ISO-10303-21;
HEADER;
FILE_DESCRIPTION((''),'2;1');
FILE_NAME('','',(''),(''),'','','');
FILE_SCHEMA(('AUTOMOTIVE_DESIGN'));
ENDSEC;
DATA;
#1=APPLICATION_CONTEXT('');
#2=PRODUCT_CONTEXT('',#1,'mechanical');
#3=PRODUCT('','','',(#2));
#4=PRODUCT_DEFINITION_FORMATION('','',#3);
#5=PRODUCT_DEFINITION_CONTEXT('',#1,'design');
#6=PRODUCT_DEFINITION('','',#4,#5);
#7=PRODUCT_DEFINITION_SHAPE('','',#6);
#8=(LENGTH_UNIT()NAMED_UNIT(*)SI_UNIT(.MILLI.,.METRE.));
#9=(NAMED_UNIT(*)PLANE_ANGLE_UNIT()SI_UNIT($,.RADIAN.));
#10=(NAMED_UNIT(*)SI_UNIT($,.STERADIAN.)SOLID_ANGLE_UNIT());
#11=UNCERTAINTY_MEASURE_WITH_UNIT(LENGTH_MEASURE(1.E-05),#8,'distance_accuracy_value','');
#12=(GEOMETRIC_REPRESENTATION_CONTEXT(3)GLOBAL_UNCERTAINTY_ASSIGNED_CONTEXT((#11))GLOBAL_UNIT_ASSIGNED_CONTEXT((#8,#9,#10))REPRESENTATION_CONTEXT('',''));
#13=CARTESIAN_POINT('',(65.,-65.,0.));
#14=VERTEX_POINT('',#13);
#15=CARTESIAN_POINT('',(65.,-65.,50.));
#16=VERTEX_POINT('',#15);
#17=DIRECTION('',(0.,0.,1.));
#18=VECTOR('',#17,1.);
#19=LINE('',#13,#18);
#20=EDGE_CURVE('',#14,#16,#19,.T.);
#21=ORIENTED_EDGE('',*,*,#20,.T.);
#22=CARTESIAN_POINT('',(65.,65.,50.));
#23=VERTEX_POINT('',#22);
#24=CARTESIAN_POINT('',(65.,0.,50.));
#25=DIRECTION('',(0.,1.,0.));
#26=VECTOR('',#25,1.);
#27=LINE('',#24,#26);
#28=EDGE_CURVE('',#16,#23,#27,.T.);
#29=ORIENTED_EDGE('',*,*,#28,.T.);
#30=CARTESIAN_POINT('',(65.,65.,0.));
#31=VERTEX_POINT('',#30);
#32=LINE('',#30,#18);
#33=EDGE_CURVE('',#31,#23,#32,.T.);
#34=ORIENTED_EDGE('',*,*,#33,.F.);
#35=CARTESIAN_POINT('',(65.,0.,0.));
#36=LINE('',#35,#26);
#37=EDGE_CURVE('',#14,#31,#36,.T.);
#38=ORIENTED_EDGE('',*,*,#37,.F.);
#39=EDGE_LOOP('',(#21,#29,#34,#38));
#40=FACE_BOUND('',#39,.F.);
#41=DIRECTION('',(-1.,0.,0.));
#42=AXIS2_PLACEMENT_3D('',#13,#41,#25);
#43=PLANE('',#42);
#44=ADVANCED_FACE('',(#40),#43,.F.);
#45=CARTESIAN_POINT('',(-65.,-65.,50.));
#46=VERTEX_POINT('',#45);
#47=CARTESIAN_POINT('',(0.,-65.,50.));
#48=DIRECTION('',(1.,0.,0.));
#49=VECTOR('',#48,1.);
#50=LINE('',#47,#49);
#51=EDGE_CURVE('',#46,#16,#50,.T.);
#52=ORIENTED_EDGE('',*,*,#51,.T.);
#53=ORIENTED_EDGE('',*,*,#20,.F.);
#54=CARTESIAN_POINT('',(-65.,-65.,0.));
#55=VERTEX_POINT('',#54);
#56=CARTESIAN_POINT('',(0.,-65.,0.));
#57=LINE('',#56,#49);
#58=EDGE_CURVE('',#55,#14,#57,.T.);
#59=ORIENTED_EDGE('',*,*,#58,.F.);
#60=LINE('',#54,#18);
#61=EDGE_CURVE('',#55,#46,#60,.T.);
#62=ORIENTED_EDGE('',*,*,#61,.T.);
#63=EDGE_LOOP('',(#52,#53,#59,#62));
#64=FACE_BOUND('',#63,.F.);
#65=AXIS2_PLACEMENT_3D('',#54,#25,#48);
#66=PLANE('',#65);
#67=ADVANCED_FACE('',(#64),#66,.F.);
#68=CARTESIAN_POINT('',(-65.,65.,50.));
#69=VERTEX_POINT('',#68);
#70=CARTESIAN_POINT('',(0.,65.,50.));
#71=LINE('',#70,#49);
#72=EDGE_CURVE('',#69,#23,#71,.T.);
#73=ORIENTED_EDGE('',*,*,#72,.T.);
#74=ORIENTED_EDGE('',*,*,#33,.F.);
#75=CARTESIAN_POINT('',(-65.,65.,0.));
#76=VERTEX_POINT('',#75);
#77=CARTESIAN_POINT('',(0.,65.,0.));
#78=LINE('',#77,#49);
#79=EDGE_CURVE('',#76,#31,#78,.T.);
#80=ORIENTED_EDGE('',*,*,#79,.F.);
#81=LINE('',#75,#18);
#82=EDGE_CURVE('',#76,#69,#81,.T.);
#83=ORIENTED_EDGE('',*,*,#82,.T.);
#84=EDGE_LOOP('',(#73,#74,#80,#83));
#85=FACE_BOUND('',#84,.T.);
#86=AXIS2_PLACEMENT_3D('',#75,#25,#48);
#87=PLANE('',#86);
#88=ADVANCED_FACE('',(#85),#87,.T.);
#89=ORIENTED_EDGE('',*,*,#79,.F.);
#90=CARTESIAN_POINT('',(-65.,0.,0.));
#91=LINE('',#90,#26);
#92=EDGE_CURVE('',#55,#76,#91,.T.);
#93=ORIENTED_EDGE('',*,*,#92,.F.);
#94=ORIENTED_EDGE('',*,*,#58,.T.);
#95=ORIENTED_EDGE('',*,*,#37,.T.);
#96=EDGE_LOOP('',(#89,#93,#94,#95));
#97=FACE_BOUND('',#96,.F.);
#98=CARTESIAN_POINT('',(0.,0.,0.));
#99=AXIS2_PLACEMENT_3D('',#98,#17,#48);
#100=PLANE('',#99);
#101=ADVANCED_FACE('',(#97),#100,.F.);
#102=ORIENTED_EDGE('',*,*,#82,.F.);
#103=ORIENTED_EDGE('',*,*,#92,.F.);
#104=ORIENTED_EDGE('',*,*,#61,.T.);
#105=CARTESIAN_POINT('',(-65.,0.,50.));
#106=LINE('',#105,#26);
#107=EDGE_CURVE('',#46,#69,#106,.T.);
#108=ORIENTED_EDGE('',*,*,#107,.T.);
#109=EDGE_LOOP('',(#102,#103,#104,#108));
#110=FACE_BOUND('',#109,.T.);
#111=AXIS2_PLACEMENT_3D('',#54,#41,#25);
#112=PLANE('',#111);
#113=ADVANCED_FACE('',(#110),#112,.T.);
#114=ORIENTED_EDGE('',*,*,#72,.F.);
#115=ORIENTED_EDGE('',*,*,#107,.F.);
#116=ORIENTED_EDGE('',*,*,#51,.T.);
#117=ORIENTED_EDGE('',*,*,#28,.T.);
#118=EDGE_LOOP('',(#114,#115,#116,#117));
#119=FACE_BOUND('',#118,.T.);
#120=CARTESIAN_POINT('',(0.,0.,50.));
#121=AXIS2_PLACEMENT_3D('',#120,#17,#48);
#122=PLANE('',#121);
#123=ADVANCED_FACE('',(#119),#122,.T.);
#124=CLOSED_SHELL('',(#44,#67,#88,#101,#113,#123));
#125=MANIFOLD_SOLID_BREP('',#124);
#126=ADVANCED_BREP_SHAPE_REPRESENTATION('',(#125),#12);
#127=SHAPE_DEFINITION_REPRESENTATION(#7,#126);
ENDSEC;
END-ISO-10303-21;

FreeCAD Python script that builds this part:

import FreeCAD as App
import Part
import Sketcher
from FreeCAD import Vector

doc = App.newDocument("Part")
body = doc.addObject("PartDesign::Body", "Body")

sketch1 = body.newObject("Sketcher::SketchObject", "Sketch")
sketch1.AttachmentSupport = (doc.getObject("XY_Plane"), [""])
sketch1.MapMode = "FlatFace"
sketch1.addGeometry([
    Part.LineSegment(Vector(-65, 65, 0), Vector(-65, -65, 0)),
    Part.LineSegment(Vector(-65, -65, 0), Vector(65, -65, 0)),
    Part.LineSegment(Vector(65, -65, 0), Vector(65, 65, 0)),
    Part.LineSegment(Vector(65, 65, 0), Vector(-65, 65, 0)),
], False)
sketch1.addConstraint([
    Sketcher.Constraint("Coincident", 0, 2, 1, 1),
    Sketcher.Constraint("Coincident", 1, 2, 2, 1),
    Sketcher.Constraint("Coincident", 2, 2, 3, 1),
    Sketcher.Constraint("Coincident", 3, 2, 0, 1),
    Sketcher.Constraint("Vertical", 0),
    Sketcher.Constraint("Horizontal", 1),
    Sketcher.Constraint("Vertical", 2),
    Sketcher.Constraint("Horizontal", 3),
    Sketcher.Constraint("Symmetric", 0, 2, 2, 2, -1, 1),
    Sketcher.Constraint("Equal", 3, 0),
    Sketcher.Constraint("DistanceX", 1, 1, 1, 2, 130.0),
])
pad1 = body.newObject("PartDesign::Pad", "Pad")
pad1.Profile = sketch1
pad1.Length = 50

doc.recompute()
